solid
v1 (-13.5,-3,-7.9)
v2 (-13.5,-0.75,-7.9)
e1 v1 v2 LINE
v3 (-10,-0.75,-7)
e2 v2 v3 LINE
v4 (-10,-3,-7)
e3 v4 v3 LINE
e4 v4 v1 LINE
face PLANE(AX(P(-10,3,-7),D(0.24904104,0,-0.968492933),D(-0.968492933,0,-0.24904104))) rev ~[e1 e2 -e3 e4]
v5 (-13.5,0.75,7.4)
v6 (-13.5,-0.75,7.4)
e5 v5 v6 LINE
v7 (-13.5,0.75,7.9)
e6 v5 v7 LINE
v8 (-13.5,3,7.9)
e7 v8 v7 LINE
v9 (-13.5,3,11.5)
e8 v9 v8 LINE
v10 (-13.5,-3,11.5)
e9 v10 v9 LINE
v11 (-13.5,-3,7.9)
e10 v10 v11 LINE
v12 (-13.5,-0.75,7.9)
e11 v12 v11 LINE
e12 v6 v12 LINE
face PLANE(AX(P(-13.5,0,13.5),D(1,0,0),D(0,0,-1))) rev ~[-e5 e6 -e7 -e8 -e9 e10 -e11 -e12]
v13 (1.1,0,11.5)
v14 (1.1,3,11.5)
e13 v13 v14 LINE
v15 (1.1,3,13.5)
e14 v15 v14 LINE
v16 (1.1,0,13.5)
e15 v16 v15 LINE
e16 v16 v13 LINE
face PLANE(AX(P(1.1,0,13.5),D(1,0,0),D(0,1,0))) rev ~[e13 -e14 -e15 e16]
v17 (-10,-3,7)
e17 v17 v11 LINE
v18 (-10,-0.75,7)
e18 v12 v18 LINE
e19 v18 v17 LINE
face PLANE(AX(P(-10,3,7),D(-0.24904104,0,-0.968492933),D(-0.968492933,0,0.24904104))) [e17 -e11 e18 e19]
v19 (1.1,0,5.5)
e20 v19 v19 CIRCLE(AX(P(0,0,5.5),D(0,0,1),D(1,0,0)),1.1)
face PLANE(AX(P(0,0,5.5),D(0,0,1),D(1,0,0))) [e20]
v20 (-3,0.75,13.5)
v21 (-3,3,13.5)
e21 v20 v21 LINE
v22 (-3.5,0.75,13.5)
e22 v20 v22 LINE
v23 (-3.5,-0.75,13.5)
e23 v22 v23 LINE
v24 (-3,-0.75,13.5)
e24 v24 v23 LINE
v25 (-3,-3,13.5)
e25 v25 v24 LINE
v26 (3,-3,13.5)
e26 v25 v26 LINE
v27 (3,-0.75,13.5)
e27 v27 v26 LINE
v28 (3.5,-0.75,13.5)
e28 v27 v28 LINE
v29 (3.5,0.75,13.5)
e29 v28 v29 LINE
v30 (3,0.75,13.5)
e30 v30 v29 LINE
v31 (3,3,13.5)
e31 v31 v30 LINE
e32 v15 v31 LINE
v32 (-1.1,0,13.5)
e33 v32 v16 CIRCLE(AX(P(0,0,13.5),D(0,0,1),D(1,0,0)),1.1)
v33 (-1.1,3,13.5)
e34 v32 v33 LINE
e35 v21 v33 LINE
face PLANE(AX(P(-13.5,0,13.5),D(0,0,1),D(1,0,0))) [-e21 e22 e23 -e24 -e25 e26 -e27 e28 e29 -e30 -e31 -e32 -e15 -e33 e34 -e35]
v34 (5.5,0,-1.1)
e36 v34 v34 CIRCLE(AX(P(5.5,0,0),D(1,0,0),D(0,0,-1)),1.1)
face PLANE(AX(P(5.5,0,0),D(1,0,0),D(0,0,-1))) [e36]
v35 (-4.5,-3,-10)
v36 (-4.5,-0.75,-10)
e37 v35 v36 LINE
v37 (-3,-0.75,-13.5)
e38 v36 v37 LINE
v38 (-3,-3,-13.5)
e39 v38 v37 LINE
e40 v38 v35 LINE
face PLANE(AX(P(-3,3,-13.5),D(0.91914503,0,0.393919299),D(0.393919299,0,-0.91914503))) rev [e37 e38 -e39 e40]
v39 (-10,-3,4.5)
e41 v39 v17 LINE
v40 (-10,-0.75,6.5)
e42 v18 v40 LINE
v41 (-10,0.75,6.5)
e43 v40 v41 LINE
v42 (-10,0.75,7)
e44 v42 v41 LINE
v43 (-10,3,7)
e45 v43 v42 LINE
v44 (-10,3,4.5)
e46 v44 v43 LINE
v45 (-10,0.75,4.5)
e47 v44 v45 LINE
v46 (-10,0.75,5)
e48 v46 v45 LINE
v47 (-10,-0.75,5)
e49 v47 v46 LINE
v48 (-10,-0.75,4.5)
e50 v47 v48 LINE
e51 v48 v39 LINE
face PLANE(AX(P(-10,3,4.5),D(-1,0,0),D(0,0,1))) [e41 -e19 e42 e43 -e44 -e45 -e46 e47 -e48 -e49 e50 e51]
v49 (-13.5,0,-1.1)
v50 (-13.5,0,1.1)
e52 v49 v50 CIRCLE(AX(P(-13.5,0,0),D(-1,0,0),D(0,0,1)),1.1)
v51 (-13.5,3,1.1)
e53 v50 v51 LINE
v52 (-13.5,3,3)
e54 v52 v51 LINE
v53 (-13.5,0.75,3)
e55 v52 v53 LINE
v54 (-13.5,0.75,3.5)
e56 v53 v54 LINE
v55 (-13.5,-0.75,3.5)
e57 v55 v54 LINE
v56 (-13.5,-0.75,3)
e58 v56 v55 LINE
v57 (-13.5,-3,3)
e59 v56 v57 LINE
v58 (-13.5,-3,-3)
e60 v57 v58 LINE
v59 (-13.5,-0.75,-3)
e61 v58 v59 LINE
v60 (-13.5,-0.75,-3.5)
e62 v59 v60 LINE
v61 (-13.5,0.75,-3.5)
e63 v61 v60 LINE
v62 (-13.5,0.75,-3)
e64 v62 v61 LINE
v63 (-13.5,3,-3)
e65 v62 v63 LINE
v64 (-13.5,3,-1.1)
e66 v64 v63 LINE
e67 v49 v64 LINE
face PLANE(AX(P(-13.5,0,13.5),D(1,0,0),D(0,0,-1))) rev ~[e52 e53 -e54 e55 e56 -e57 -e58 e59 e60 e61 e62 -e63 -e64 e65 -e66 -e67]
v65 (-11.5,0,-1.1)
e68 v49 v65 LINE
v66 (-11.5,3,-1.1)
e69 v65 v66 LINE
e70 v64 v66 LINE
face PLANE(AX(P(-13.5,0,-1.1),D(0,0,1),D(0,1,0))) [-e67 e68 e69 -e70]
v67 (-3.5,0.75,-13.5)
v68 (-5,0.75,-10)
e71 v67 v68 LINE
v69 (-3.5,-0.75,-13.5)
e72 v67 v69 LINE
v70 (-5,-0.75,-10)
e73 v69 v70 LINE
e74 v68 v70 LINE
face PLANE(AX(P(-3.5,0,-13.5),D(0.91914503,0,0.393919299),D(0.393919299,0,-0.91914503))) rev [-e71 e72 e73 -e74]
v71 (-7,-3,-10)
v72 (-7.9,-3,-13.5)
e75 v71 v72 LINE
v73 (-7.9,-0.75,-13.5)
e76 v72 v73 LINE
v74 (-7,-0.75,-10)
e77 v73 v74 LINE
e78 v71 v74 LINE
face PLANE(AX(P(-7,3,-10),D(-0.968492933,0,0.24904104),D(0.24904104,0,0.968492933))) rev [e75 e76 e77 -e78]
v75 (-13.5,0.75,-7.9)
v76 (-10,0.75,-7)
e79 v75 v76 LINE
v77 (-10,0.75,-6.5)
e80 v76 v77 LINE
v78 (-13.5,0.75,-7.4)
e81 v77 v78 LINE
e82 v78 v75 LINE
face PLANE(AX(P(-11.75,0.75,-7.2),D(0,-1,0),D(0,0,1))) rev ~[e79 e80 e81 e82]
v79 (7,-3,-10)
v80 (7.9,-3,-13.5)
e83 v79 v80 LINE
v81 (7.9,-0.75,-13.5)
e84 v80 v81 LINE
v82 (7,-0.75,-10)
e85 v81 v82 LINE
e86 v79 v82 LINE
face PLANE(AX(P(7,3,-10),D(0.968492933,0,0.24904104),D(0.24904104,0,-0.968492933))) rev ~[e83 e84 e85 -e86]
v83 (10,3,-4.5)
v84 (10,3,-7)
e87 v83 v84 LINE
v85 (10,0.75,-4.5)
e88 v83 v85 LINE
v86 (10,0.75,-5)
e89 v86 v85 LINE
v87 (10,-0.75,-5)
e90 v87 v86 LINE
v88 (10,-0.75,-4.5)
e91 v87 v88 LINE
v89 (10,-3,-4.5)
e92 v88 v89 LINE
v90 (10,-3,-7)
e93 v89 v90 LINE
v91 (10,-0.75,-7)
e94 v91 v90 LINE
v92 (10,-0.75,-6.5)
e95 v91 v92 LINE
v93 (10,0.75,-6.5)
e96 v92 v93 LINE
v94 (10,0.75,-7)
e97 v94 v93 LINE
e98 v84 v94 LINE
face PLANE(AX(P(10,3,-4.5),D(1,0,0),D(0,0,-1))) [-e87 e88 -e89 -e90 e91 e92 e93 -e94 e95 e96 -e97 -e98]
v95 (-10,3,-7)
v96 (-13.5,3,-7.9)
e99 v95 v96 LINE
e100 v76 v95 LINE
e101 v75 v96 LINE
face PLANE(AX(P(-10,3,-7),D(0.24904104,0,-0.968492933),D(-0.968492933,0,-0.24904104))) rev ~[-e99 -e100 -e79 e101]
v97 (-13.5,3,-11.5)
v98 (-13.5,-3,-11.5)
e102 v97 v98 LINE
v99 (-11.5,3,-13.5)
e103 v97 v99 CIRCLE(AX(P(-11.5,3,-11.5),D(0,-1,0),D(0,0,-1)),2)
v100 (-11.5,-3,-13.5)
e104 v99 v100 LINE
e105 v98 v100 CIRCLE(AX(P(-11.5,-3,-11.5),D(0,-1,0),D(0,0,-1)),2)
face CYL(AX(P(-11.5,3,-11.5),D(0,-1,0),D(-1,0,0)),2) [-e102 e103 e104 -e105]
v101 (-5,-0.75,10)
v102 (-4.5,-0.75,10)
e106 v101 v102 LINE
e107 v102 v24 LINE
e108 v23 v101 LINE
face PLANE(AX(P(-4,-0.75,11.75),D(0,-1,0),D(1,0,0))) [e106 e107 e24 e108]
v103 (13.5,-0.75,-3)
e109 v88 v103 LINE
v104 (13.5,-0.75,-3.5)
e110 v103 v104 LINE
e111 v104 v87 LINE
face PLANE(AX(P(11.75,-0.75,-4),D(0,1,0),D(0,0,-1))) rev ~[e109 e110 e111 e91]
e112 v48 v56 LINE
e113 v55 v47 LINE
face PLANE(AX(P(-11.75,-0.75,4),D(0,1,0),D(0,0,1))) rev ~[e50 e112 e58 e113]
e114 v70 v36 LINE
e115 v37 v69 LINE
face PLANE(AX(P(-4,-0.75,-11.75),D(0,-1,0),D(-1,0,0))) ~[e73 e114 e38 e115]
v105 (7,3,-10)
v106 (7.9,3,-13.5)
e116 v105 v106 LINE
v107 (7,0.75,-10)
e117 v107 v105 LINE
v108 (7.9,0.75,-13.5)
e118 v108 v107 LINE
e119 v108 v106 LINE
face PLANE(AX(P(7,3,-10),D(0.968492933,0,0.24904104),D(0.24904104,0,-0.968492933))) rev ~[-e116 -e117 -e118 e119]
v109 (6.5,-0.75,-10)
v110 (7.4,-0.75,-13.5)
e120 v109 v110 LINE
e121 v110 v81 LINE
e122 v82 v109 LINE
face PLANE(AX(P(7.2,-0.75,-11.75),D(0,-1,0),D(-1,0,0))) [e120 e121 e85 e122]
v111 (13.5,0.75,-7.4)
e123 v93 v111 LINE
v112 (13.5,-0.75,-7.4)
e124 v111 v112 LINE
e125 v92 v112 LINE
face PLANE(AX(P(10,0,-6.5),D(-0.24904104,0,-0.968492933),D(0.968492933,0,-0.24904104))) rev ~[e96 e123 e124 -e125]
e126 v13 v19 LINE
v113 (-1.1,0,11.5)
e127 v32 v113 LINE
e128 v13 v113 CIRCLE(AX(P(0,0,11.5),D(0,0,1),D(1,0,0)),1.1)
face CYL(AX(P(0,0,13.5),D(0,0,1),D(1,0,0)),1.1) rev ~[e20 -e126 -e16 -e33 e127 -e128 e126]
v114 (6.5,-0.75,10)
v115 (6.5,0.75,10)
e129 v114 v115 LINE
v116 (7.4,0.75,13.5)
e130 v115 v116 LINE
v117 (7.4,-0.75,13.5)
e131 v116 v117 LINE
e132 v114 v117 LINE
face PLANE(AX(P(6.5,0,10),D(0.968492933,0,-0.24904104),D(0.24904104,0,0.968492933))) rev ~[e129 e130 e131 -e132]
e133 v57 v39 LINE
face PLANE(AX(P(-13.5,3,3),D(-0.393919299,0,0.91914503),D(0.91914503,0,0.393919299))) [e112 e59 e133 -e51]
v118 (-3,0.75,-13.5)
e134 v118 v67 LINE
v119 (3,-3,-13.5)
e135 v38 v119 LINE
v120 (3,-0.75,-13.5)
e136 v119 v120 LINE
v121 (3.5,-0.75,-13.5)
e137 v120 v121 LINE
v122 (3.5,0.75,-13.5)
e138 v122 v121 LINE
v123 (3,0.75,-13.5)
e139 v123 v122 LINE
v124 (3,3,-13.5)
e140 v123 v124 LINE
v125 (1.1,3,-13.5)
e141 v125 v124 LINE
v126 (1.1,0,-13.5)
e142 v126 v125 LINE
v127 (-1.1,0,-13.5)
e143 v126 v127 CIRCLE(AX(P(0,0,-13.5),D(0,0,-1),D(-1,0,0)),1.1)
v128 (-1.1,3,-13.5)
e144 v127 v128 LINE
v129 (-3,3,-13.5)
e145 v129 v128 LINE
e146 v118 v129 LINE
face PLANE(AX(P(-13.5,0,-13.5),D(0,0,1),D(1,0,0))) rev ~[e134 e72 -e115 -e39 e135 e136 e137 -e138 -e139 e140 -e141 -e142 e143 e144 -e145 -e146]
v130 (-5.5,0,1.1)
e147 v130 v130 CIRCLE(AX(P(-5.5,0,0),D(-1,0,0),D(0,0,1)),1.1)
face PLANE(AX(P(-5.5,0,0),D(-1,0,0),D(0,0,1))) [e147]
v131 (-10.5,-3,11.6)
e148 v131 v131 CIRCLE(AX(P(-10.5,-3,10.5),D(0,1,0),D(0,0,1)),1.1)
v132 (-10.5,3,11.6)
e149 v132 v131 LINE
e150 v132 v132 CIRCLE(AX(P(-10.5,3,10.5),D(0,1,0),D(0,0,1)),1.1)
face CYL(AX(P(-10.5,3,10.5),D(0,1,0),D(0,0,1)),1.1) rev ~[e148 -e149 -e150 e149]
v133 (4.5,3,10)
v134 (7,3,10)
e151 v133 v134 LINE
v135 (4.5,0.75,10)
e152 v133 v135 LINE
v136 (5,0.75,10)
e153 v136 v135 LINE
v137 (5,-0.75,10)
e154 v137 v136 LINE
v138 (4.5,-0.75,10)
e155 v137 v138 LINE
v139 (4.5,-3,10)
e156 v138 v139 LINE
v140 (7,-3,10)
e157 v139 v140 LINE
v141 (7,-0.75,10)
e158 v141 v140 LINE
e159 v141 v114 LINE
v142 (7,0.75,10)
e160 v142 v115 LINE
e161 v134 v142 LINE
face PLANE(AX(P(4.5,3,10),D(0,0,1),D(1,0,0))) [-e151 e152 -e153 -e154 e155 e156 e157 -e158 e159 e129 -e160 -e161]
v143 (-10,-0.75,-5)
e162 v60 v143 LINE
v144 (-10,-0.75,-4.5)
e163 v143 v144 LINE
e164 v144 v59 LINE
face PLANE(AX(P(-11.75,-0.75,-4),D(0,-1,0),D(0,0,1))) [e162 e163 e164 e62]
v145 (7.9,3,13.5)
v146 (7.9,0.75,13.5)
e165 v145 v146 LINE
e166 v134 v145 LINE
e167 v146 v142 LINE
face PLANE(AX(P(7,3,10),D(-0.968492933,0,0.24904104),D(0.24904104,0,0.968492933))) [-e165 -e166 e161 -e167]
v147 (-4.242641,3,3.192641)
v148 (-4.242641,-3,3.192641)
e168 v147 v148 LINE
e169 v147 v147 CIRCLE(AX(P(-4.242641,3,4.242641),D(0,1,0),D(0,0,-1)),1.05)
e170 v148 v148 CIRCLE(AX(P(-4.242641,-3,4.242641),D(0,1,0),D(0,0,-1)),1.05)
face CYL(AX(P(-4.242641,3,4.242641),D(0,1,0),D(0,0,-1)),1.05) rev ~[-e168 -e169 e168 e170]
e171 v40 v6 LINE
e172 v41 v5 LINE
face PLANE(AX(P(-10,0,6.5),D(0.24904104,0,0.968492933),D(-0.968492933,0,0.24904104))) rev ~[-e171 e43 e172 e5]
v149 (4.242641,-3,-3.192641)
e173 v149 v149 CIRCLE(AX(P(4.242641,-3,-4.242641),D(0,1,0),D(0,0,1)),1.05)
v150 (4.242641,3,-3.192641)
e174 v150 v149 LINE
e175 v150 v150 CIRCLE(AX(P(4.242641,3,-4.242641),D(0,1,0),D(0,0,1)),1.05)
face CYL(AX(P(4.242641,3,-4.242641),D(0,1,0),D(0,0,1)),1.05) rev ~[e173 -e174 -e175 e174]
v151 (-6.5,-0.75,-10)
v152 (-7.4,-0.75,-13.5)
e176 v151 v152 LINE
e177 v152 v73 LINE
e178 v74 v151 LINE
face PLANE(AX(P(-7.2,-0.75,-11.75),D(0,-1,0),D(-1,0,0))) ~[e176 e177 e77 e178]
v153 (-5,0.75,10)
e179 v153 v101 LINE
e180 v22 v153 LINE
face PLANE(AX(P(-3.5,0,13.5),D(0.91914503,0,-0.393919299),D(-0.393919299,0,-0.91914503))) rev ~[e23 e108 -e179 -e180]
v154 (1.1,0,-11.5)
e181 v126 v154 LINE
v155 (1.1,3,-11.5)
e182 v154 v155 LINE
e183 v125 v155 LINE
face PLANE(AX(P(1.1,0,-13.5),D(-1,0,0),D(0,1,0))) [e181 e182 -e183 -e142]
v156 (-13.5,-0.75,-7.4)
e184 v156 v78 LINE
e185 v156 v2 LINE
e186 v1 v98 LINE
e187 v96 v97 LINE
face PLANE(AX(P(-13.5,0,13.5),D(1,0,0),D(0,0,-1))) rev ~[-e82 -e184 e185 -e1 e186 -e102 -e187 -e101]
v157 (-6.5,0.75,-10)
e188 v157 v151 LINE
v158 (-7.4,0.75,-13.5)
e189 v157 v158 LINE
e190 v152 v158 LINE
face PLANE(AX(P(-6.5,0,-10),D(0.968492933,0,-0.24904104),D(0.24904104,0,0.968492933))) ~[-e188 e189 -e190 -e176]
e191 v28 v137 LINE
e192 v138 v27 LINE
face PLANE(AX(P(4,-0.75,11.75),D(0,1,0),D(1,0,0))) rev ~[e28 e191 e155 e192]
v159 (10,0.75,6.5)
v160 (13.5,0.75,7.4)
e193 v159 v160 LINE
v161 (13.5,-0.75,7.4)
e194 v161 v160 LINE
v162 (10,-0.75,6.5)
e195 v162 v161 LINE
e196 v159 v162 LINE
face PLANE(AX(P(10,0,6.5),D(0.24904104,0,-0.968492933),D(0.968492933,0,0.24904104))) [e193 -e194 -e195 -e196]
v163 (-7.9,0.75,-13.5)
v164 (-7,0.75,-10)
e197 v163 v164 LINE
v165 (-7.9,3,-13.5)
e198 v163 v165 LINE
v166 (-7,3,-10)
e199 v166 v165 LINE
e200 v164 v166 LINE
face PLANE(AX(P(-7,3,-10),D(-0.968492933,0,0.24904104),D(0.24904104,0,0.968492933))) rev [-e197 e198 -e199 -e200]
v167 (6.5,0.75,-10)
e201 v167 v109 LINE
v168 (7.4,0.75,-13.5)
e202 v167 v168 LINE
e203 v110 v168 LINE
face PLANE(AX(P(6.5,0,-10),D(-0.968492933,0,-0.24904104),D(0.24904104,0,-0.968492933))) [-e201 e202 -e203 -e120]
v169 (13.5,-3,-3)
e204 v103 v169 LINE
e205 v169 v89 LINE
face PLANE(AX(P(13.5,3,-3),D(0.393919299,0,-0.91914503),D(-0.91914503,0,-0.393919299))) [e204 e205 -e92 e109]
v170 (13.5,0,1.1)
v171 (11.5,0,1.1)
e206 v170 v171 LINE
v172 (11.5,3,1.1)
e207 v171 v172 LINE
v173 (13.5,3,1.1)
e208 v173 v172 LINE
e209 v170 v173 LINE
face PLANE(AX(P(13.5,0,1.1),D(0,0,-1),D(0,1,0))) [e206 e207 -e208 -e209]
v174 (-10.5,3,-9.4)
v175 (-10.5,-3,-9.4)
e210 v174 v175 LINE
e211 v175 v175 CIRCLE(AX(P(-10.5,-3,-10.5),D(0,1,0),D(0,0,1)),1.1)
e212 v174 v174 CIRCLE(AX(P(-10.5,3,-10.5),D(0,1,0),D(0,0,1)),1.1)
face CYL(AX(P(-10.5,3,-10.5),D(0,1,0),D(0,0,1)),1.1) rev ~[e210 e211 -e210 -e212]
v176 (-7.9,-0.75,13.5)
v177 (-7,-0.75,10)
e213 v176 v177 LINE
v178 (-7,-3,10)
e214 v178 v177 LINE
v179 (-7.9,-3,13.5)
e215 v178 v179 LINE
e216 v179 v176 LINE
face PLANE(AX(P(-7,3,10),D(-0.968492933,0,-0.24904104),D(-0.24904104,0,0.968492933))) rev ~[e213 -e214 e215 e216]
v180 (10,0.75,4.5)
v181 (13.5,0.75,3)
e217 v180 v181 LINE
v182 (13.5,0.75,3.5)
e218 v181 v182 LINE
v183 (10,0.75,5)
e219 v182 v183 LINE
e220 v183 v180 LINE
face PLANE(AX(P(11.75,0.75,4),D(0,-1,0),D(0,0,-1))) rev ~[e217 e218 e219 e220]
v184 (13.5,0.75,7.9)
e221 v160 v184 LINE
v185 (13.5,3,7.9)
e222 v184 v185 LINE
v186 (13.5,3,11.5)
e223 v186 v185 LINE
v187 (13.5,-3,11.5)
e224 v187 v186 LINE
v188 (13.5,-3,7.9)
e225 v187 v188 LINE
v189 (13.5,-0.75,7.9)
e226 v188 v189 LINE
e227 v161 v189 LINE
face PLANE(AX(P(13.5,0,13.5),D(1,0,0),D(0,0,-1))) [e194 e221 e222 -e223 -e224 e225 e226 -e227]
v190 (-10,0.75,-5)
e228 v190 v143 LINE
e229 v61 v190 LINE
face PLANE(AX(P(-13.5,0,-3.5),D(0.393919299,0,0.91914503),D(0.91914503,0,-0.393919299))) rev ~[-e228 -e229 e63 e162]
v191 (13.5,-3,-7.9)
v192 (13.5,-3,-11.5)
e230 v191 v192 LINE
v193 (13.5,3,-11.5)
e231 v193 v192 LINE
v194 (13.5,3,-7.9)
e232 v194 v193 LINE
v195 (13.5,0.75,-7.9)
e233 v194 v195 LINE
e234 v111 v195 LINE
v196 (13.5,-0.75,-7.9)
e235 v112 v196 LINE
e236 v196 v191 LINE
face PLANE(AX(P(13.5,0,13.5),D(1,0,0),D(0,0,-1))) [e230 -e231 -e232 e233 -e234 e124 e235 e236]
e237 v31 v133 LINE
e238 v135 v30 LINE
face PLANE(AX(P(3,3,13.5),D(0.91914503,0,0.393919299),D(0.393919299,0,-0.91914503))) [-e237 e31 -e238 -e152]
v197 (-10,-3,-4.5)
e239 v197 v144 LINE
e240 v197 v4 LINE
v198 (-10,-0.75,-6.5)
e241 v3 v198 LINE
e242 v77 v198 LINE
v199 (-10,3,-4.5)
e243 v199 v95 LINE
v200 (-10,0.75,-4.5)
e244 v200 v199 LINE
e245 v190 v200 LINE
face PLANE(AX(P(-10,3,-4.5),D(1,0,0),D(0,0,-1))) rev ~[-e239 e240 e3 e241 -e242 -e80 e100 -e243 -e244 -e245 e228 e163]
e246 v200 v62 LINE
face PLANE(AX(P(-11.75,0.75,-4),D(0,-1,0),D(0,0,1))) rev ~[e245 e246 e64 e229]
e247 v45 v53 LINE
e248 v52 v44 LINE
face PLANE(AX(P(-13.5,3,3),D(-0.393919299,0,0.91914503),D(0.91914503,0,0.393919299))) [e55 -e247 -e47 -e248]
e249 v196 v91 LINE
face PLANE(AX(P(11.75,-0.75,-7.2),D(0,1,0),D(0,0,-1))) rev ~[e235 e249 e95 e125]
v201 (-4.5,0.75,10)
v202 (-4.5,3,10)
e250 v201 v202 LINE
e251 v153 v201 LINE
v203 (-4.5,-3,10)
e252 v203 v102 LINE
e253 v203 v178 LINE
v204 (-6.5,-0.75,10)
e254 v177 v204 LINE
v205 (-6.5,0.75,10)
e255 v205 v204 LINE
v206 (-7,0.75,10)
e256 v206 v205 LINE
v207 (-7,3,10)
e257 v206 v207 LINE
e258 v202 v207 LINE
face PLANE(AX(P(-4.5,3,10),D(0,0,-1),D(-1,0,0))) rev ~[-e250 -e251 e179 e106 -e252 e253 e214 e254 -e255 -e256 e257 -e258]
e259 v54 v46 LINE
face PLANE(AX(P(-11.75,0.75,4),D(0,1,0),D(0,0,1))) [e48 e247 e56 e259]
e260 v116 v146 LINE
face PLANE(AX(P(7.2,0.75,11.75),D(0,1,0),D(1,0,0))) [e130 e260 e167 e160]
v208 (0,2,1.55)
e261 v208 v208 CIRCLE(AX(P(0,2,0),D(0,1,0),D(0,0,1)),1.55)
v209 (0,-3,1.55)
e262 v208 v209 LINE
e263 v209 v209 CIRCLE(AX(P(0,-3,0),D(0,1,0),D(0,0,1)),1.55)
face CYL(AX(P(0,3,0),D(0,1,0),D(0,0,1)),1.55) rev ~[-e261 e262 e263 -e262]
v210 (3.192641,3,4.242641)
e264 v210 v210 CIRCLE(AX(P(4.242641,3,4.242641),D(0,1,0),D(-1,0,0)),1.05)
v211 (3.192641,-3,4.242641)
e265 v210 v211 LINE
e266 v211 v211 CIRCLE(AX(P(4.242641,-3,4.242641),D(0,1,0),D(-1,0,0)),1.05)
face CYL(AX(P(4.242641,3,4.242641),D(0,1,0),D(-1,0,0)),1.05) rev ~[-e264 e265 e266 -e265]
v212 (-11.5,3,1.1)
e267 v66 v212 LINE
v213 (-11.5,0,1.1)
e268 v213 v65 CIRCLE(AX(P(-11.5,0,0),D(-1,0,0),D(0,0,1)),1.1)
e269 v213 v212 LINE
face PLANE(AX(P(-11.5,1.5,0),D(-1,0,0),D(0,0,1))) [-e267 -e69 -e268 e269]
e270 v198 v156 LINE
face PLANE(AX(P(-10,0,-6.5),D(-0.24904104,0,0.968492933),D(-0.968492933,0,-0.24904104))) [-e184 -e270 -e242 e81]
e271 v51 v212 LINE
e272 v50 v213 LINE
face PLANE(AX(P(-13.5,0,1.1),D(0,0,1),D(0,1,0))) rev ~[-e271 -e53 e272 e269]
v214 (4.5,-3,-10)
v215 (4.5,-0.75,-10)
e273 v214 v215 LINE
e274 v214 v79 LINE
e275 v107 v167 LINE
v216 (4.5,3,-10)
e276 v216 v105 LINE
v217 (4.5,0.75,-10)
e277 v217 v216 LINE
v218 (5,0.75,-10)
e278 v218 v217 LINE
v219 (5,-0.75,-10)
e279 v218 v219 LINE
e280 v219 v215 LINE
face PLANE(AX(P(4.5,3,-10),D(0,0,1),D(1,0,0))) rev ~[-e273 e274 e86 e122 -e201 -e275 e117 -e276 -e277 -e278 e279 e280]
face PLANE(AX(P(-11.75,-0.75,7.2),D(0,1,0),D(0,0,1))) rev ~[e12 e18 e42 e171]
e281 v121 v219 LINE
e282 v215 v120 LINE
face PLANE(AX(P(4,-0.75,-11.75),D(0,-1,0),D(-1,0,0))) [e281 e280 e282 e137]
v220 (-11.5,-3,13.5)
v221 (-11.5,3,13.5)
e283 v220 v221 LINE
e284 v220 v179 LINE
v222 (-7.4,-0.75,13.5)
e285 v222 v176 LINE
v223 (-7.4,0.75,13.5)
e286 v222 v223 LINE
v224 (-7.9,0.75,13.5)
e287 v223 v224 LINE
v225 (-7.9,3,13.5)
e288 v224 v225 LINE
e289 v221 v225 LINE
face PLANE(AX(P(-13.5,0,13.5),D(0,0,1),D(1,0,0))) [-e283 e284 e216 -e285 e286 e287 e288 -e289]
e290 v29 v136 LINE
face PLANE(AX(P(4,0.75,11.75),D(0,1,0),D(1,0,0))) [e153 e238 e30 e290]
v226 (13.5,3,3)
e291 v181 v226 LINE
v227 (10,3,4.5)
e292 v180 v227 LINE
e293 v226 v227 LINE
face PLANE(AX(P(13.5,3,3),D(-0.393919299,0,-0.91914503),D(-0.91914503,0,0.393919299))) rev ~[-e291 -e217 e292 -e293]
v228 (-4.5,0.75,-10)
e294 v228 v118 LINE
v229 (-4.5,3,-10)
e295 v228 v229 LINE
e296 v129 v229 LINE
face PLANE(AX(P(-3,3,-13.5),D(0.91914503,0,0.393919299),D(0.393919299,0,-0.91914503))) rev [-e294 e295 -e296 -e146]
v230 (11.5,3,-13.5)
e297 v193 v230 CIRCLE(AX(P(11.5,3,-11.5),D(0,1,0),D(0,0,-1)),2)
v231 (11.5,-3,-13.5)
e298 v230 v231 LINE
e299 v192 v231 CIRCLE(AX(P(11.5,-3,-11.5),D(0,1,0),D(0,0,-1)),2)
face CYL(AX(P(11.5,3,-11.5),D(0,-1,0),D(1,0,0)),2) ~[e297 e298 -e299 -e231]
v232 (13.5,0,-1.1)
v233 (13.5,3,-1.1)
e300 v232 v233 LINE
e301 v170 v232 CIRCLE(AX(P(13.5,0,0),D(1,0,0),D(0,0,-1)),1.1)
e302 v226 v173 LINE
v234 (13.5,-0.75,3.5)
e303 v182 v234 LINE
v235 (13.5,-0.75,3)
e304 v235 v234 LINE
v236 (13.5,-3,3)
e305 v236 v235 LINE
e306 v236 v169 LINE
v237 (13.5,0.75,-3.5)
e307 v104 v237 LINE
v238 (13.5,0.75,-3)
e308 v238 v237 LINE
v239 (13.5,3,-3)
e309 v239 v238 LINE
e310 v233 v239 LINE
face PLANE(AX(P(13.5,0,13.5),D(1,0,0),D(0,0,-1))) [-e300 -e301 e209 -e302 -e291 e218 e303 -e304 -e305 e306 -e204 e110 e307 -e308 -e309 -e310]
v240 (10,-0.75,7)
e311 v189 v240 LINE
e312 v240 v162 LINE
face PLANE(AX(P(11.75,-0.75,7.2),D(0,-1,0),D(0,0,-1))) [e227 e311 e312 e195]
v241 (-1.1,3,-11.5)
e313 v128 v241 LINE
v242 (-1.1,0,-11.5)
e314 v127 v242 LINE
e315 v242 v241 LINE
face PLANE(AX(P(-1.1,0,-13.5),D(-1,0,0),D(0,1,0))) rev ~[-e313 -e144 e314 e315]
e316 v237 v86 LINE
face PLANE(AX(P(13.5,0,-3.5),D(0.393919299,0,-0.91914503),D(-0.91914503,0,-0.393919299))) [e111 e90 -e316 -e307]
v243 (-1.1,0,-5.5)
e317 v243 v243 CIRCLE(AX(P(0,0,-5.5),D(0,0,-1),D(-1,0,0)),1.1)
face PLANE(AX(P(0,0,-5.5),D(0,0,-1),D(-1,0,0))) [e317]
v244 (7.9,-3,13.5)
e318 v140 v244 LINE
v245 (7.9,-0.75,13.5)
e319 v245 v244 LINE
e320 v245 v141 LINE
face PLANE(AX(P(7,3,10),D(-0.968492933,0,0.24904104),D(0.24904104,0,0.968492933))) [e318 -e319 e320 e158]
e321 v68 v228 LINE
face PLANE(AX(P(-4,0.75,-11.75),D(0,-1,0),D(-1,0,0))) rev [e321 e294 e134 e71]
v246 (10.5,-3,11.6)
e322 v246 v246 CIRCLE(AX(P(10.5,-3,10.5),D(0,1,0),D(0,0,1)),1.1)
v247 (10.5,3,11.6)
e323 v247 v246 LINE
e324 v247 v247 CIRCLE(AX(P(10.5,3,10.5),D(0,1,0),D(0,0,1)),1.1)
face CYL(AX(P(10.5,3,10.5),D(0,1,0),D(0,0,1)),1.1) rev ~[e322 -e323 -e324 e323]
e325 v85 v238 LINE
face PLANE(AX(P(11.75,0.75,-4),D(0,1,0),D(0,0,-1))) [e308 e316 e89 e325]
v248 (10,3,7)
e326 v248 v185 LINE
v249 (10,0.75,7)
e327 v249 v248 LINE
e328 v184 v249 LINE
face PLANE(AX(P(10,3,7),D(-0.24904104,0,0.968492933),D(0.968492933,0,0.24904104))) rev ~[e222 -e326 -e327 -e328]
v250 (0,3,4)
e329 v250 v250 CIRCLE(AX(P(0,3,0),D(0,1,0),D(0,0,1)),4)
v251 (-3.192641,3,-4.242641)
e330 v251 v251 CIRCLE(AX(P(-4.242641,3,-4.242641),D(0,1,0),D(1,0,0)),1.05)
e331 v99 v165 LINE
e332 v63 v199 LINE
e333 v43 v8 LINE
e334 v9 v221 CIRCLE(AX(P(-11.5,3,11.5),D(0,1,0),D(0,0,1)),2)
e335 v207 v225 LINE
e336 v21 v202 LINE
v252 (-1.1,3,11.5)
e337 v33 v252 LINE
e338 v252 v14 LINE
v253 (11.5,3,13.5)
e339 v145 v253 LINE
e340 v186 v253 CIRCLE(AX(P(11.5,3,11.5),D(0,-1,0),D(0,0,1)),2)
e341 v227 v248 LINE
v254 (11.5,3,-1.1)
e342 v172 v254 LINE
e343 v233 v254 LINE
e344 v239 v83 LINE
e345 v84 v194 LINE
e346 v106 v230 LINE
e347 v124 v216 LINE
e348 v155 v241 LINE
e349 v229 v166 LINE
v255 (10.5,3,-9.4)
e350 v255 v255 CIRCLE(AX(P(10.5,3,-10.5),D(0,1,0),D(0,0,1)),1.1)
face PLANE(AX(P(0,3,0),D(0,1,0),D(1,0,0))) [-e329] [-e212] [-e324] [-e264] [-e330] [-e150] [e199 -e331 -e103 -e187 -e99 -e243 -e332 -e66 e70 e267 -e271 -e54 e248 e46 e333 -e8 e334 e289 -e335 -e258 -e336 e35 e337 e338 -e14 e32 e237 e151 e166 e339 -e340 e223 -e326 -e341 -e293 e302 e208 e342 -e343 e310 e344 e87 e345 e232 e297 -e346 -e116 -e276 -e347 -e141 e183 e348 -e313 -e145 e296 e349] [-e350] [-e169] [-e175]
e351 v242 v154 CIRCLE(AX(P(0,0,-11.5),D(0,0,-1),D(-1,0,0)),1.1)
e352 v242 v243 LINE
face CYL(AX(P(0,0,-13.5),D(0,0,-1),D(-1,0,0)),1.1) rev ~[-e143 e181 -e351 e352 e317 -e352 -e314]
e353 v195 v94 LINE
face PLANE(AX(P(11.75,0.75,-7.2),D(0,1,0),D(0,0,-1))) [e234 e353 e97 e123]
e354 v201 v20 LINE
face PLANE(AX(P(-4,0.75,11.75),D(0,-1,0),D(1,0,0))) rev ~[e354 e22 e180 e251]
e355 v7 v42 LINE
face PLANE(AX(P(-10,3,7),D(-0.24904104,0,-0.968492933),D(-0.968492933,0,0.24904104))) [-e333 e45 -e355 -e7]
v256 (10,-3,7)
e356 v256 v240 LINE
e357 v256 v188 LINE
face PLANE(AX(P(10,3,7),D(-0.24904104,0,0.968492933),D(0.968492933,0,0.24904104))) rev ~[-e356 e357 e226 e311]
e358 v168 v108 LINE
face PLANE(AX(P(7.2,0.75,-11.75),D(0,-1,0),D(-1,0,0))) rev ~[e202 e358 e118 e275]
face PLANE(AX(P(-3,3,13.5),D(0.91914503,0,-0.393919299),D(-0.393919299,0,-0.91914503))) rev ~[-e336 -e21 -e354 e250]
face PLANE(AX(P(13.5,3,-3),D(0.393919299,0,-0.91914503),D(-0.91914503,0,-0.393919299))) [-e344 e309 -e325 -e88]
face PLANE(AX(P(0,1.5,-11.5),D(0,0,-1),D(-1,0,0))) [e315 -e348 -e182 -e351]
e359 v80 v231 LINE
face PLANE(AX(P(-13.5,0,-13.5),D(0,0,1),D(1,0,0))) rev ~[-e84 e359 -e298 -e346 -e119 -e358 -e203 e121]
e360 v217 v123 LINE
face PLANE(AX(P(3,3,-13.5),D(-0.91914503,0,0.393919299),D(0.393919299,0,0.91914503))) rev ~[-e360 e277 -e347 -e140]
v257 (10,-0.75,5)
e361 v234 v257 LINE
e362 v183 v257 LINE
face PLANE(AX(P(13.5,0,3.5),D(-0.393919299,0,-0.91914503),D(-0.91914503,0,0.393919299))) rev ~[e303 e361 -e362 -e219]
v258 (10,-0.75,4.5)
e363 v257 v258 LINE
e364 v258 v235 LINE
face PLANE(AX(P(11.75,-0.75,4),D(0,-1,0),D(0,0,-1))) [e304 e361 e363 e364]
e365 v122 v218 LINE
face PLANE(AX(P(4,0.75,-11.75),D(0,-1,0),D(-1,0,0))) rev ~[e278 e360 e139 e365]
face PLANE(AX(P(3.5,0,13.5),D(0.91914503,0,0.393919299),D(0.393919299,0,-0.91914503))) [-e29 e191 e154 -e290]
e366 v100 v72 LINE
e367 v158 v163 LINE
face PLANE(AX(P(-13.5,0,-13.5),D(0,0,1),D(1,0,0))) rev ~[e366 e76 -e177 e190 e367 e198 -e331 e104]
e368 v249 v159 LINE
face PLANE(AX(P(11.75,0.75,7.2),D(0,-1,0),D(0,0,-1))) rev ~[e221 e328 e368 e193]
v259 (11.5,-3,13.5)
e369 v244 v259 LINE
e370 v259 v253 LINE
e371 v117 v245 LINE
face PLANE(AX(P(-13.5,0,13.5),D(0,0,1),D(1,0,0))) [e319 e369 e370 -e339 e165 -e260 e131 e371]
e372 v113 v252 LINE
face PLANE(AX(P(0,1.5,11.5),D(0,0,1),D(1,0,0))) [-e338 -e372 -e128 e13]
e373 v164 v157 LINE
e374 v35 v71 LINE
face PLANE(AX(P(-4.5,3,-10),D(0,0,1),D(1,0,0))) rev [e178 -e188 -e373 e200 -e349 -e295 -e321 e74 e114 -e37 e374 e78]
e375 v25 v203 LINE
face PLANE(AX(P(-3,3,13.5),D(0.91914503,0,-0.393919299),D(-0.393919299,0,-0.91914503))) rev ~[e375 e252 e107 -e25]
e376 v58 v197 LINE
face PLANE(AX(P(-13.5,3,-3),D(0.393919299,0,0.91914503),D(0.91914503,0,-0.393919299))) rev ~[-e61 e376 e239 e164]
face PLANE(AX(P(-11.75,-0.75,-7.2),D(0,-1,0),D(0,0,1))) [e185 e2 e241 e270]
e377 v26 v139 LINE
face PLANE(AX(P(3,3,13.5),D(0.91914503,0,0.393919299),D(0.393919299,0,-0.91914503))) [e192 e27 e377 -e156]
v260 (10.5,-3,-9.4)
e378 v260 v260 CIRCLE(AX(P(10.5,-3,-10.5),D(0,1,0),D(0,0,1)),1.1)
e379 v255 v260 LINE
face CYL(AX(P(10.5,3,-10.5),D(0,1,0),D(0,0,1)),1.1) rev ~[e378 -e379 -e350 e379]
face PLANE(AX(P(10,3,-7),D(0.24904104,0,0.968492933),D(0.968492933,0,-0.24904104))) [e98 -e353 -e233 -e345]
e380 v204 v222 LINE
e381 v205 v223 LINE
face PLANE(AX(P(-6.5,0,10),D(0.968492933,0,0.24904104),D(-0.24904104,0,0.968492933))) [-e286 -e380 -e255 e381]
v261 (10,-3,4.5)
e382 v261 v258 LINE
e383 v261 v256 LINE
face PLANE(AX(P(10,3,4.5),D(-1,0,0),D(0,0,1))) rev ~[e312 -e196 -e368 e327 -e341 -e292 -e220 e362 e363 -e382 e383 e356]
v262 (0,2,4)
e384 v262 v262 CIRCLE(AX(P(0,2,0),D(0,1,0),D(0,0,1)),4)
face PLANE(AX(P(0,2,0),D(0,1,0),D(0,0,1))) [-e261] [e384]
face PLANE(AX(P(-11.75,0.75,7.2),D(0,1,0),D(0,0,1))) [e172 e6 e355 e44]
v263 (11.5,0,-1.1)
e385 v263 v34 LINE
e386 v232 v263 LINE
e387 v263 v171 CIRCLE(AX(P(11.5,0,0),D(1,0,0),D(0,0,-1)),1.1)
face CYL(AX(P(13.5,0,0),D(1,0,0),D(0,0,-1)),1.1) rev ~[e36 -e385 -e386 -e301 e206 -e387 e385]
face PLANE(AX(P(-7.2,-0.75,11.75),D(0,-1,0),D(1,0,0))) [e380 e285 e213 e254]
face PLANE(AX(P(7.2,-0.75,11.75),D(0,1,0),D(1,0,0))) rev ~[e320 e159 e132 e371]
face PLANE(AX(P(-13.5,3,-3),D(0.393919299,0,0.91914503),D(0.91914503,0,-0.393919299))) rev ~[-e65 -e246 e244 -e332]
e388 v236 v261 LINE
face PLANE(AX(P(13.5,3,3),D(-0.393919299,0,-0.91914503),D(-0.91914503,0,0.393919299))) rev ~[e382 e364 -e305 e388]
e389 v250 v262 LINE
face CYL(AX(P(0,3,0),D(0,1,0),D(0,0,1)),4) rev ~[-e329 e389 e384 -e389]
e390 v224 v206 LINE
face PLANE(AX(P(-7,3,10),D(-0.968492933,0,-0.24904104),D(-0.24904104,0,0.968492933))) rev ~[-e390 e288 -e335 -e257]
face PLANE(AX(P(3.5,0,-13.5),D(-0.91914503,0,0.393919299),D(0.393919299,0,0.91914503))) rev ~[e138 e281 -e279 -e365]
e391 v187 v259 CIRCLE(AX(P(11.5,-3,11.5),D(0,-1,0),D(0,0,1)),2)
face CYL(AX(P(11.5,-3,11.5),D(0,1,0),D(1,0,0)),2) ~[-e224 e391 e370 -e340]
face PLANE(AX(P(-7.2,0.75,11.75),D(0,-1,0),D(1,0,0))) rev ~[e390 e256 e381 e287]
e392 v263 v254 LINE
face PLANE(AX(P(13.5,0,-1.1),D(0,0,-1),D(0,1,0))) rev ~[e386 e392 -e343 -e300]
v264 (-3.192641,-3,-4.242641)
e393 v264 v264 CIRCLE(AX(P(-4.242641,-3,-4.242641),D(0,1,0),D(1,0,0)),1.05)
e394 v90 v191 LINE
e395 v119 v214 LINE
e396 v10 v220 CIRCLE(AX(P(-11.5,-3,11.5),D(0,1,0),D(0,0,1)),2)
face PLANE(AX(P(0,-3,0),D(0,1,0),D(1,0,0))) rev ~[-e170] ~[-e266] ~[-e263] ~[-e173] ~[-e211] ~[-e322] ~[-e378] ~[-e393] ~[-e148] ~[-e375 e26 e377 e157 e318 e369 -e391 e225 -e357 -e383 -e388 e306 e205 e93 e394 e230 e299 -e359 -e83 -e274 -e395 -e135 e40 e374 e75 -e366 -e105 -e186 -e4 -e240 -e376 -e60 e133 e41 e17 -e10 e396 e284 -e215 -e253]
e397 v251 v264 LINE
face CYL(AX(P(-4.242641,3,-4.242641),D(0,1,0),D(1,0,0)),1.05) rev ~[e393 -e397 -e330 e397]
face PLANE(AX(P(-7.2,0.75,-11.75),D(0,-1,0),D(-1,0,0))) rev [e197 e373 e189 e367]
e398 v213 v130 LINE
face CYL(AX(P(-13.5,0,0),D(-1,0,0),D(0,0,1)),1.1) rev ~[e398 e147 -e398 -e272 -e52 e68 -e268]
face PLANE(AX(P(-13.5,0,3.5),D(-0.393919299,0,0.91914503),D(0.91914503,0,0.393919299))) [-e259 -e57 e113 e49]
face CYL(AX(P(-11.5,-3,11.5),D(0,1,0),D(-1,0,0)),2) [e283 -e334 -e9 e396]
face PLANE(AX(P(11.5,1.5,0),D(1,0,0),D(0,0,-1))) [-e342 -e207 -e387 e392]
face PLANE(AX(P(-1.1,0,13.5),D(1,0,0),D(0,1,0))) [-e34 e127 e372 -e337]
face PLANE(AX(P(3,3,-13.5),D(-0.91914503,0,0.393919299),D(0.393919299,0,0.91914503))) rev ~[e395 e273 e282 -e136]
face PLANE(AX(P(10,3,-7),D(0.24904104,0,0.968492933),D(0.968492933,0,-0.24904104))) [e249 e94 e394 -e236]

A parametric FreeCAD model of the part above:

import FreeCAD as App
import Part
import Sketcher

V = App.Vector
Q = App.Units.Quantity


def edges_at(feature, points):
    """Names of the edges that pass closest to the given points."""
    edges = feature.Shape.Edges
    near = lambda p: min(range(len(edges)), key=lambda i: edges[i].distToShape(Part.Vertex(*p))[0])
    return sorted({f"Edge{near(p) + 1}" for p in points})


def add_polygon(sketch, points):
    """Adds a closed chain of lines whose ends are joined by coincident constraints."""
    first, n = sketch.GeometryCount, len(points)
    for a, b in zip(points, points[1:] + points[:1]):
        sketch.addGeometry(Part.LineSegment(App.Vector(*a, 0), App.Vector(*b, 0)), False)
    for i in range(n):
        sketch.addConstraint(Sketcher.Constraint("Coincident", first + i, 2, first + (i + 1) % n, 1))

doc = App.newDocument("Part")
body = doc.addObject("PartDesign::Body", "Body")

# Sketch on XZ plane
sketch1 = body.newObject("Sketcher::SketchObject", "Sketch")
sketch1.AttachmentSupport = (doc.getObject("XZ_Plane"), [""])
sketch1.MapMode = "FlatFace"
add_polygon(sketch1, [(-14, -14), (-14, 14), (14, 14), (14, -14)])  # lines 0-3
sketch1.addConstraint([
    Sketcher.Constraint("Vertical", 0),
    Sketcher.Constraint("Horizontal", 1),
    Sketcher.Constraint("Vertical", 2),
    Sketcher.Constraint("Horizontal", 3),
    Sketcher.Constraint("Symmetric", 0, 2, 2, 2, -1, 1),
    Sketcher.Constraint("Equal", 3, 0),
    Sketcher.Constraint("DistanceX", 1, 1, 1, 2, Q("27 mm")),
])
pad1 = body.newObject("PartDesign::Pad", "Pad")
pad1.Profile = sketch1
pad1.Length = 6
pad1.Midplane = True
doc.recompute()

fillet = body.newObject("PartDesign::Fillet", "Fillet")
fillet.Base = (pad1, edges_at(pad1, [
    (13.5, 0, 13.5),
    (-13.5, 0, 13.5),
    (-13.5, 0, -13.5),
    (13.5, 0, -13.5),
]))
fillet.Radius = 2

# Sketch on XZ plane
sketch2 = body.newObject("Sketcher::SketchObject", "Sketch001")
sketch2.AttachmentSupport = (doc.getObject("XZ_Plane"), [""])
sketch2.MapMode = "FlatFace"
sketch2.AttachmentOffset = App.Placement(V(0, 0, -3), App.Rotation())
sketch2.addGeometry([
    Part.Circle(V(-10.5, -10.5, 0), V(0, 0, 1), 1.1),
    Part.Circle(V(10.5, -10.5, 0), V(0, 0, 1), 1.1),
    Part.Circle(V(-10.5, 10.5, 0), V(0, 0, 1), 1.1),
    Part.Circle(V(10.5, 10.5, 0), V(0, 0, 1), 1.1),
], False)
sketch2.addConstraint([
    Sketcher.Constraint("Equal", 0, 1),
    Sketcher.Constraint("Equal", 1, 2),
    Sketcher.Constraint("Equal", 2, 3),
    Sketcher.Constraint("Symmetric", 1, 3, 2, 3, -1, 1),
    Sketcher.Constraint("Symmetric", 0, 3, 3, 3, -1, 1),
    Sketcher.Constraint("Symmetric", 0, 3, 1, 3, -2),
    Sketcher.Constraint("Diameter", 0, Q("2.2 mm")),
    Sketcher.Constraint("DistanceX", 0, 3, 1, 3, Q("21 mm")),
    Sketcher.Constraint("DistanceY", 0, 3, 2, 3, Q("21 mm")),
])
pocket1 = body.newObject("PartDesign::Pocket", "Pocket")
pocket1.Profile = sketch2
pocket1.Length = 6
pocket1.Reversed = True

# Sketch on XZ plane
sketch3 = body.newObject("Sketcher::SketchObject", "Sketch002")
sketch3.AttachmentSupport = (doc.getObject("XZ_Plane"), [""])
sketch3.MapMode = "FlatFace"
sketch3.AttachmentOffset = App.Placement(V(0, 0, -3), App.Rotation())
sketch3.addGeometry(Part.Circle(V(0, 0, 0), V(0, 0, 1), 1.6), False)
sketch3.addConstraint([
    Sketcher.Constraint("Coincident", 0, 3, -1, 1),
    Sketcher.Constraint("Diameter", 0, Q("3.1 mm")),
])
pocket2 = body.newObject("PartDesign::Pocket", "Pocket001")
pocket2.Profile = sketch3
pocket2.Length = 6
pocket2.Reversed = True

# Sketch on XZ plane
sketch4 = body.newObject("Sketcher::SketchObject", "Sketch003")
sketch4.AttachmentSupport = (doc.getObject("XZ_Plane"), [""])
sketch4.MapMode = "FlatFace"
sketch4.AttachmentOffset = App.Placement(V(0, 0, -3), App.Rotation())
sketch4.addGeometry(Part.Circle(V(4.2, -4.2, 0), V(0, 0, 1), 1.1), False)
sketch4.addConstraint([
    Sketcher.Constraint("Diameter", 0, Q("2.1 mm")),
    Sketcher.Constraint("DistanceX", -1, 1, 0, 3, Q("4.242641 mm")),
    Sketcher.Constraint("DistanceY", 0, 3, -1, 1, Q("4.242641 mm")),
])
pocket3 = body.newObject("PartDesign::Pocket", "Pocket002")
pocket3.Profile = sketch4
pocket3.Length = 6
pocket3.Reversed = True
doc.recompute()

polarpattern = body.newObject("PartDesign::PolarPattern", "PolarPattern")
polarpattern.Originals = [pocket3]
polarpattern.Axis = (doc.getObject("Y_Axis"), [""])
polarpattern.Angle = 360
polarpattern.Occurrences = 4
body.Tip = polarpattern

# Sketch on XZ plane
sketch5 = body.newObject("Sketcher::SketchObject", "Sketch004")
sketch5.AttachmentSupport = (doc.getObject("XZ_Plane"), [""])
sketch5.MapMode = "FlatFace"
sketch5.AttachmentOffset = App.Placement(V(0, 0, -3), App.Rotation())
sketch5.addGeometry(Part.Circle(V(0, 0, 0), V(0, 0, 1), 4), False)
sketch5.addConstraint([
    Sketcher.Constraint("Coincident", 0, 3, -1, 1),
    Sketcher.Constraint("Diameter", 0, Q("8 mm")),
])
pocket4 = body.newObject("PartDesign::Pocket", "Pocket003")
pocket4.Profile = sketch5
pocket4.Length = 1
pocket4.Reversed = True

# Sketch on XZ plane
sketch6 = body.newObject("Sketcher::SketchObject", "Sketch005")
sketch6.AttachmentSupport = (doc.getObject("XZ_Plane"), [""])
sketch6.MapMode = "FlatFace"
sketch6.AttachmentOffset = App.Placement(V(0, 0, -3), App.Rotation())
add_polygon(sketch6, [(-28.1, -86), (3, -13.5), (4.5, -10), (7, -10), (7.9, -13.5), (27.6, -89.9), (16.5, -247.3), (-39.1, -243.4)])  # lines 0-7
sketch6.addConstraint([
    Sketcher.Constraint("Horizontal", 2),
    Sketcher.Constraint("Parallel", 0, 1),
    Sketcher.Constraint("Parallel", 3, 4),
    Sketcher.Constraint("Perpendicular", 5, 6),
    Sketcher.Constraint("Perpendicular", 6, 7),
    Sketcher.Constraint("Horizontal", 0, 2, 3, 2),
    Sketcher.Constraint("Equal", 0, 4),
    Sketcher.Constraint("Equal", 5, 7),
    Sketcher.Constraint("DistanceX", 2, 1, 2, 2, Q("2.5 mm")),
    Sketcher.Constraint("DistanceX", -1, 1, 0, 2, Q("3 mm")),
    Sketcher.Constraint("DistanceY", 1, 2, -1, 1, Q("10 mm")),
    Sketcher.Constraint("DistanceX", -1, 1, 2, 2, Q("7 mm")),
    Sketcher.Constraint("DistanceY", 0, 2, -1, 1, Q("13.5 mm")),
    Sketcher.Constraint("DistanceX", -1, 1, 3, 2, Q("7.9 mm")),
    Sketcher.Constraint("DistanceX", 6, 2, -1, 1, Q("39.100299 mm")),
    Sketcher.Constraint("Distance", 0, Q("78.904572 mm")),
])
pocket5 = body.newObject("PartDesign::Pocket", "Pocket004")
pocket5.Profile = sketch6
pocket5.Length = 42.024992
pocket5.Midplane = True
doc.recompute()

mirrored = body.newObject("PartDesign::Mirrored", "Mirrored")
mirrored.Originals = [pocket5]
mirrored.MirrorPlane = (doc.getObject("YZ_Plane"), [""])
body.Tip = mirrored
doc.recompute()

polarpattern2 = body.newObject("PartDesign::PolarPattern", "PolarPattern001")
polarpattern2.Originals = [pocket5]
polarpattern2.Axis = (doc.getObject("Y_Axis"), [""])
polarpattern2.Angle = 360
polarpattern2.Occurrences = 4
body.Tip = polarpattern2

# Sketch on XZ plane
sketch7 = body.newObject("Sketcher::SketchObject", "Sketch006")
sketch7.AttachmentSupport = (doc.getObject("XZ_Plane"), [""])
sketch7.MapMode = "FlatFace"
sketch7.AttachmentOffset = App.Placement(V(0, 0, -3), App.Rotation())
add_polygon(sketch7, [(-13.5, 3), (-86, -28.1), (-243.4, -39.1), (-247.3, 16.5), (-89.9, 27.6), (-13.5, 7.9), (-10, 7), (-10, 4.5)])  # lines 0-7
sketch7.addConstraint([
    Sketcher.Constraint("Vertical", 6),
    Sketcher.Constraint("Perpendicular", 1, 2),
    Sketcher.Constraint("Perpendicular", 2, 3),
    Sketcher.Constraint("Parallel", 4, 5),
    Sketcher.Constraint("Parallel", 0, 7),
    Sketcher.Constraint("Vertical", 4, 2, 7, 2),
    Sketcher.Constraint("Equal", 1, 3),
    Sketcher.Constraint("Equal", 0, 4),
    Sketcher.Constraint("DistanceY", 6, 2, 6, 1, Q("2.5 mm")),
    Sketcher.Constraint("DistanceX", 5, 2, -1, 1, Q("10 mm")),
    Sketcher.Constraint("DistanceY", -1, 1, 5, 2, Q("7 mm")),
    Sketcher.Constraint("DistanceY", -1, 1, 7, 2, Q("3 mm")),
    Sketcher.Constraint("DistanceX", 4, 2, -1, 1, Q("13.5 mm")),
    Sketcher.Constraint("DistanceY", -1, 1, 4, 2, Q("7.9 mm")),
    Sketcher.Constraint("DistanceY", 1, 2, -1, 1, Q("39.100299 mm")),
    Sketcher.Constraint("DistanceX", 2, 2, 0, 2, Q("161.3178 mm")),
])
pocket6 = body.newObject("PartDesign::Pocket", "Pocket005")
pocket6.Profile = sketch7
pocket6.Length = 42.024992
pocket6.Midplane = True

# Sketch on XZ plane
sketch8 = body.newObject("Sketcher::SketchObject", "Sketch007")
sketch8.AttachmentSupport = (doc.getObject("XZ_Plane"), [""])
sketch8.MapMode = "FlatFace"
sketch8.AttachmentOffset = App.Placement(V(0, 0, -3), App.Rotation())
add_polygon(sketch8, [(3, 13.5), (-28.1, 86), (-39.1, 243.4), (16.5, 247.3), (27.6, 89.9), (7.9, 13.5), (7, 10), (4.5, 10)])  # lines 0-7
sketch8.addConstraint([
    Sketcher.Constraint("Horizontal", 6),
    Sketcher.Constraint("Perpendicular", 1, 2),
    Sketcher.Constraint("Perpendicular", 2, 3),
    Sketcher.Constraint("Parallel", 4, 5),
    Sketcher.Constraint("Parallel", 0, 7),
    Sketcher.Constraint("Horizontal", 4, 2, 7, 2),
    Sketcher.Constraint("Equal", 1, 3),
    Sketcher.Constraint("Equal", 0, 4),
    Sketcher.Constraint("DistanceX", 6, 2, 6, 1, Q("2.5 mm")),
    Sketcher.Constraint("DistanceX", -1, 1, 5, 2, Q("7 mm")),
    Sketcher.Constraint("DistanceY", -1, 1, 5, 2, Q("10 mm")),
    Sketcher.Constraint("DistanceX", -1, 1, 7, 2, Q("3 mm")),
    Sketcher.Constraint("DistanceX", -1, 1, 4, 2, Q("7.9 mm")),
    Sketcher.Constraint("DistanceY", -1, 1, 4, 2, Q("13.5 mm")),
    Sketcher.Constraint("DistanceX", 1, 2, -1, 1, Q("39.100299 mm")),
    Sketcher.Constraint("DistanceY", 0, 2, 2, 2, Q("161.3178 mm")),
])
pocket7 = body.newObject("PartDesign::Pocket", "Pocket006")
pocket7.Profile = sketch8
pocket7.Length = 42.024992
pocket7.Midplane = True

# Sketch on XZ plane
sketch9 = body.newObject("Sketcher::SketchObject", "Sketch008")
sketch9.AttachmentSupport = (doc.getObject("XZ_Plane"), [""])
sketch9.MapMode = "FlatFace"
sketch9.AttachmentOffset = App.Placement(V(0, 0, -3), App.Rotation())
add_polygon(sketch9, [(13.5, -3), (86, 28.1), (243.4, 39.1), (247.3, -16.5), (89.9, -27.6), (13.5, -7.9), (10, -7), (10, -4.5)])  # lines 0-7
sketch9.addConstraint([
    Sketcher.Constraint("Vertical", 6),
    Sketcher.Constraint("Perpendicular", 1, 2),
    Sketcher.Constraint("Perpendicular", 2, 3),
    Sketcher.Constraint("Parallel", 4, 5),
    Sketcher.Constraint("Parallel", 0, 7),
    Sketcher.Constraint("Vertical", 4, 2, 7, 2),
    Sketcher.Constraint("Equal", 1, 3),
    Sketcher.Constraint("Equal", 0, 4),
    Sketcher.Constraint("DistanceY", 6, 1, 6, 2, Q("2.5 mm")),
    Sketcher.Constraint("DistanceX", -1, 1, 5, 2, Q("10 mm")),
    Sketcher.Constraint("DistanceY", 5, 2, -1, 1, Q("7 mm")),
    Sketcher.Constraint("DistanceY", 7, 2, -1, 1, Q("3 mm")),
    Sketcher.Constraint("DistanceX", -1, 1, 4, 2, Q("13.5 mm")),
    Sketcher.Constraint("DistanceY", 4, 2, -1, 1, Q("7.9 mm")),
    Sketcher.Constraint("DistanceY", -1, 1, 1, 2, Q("39.100299 mm")),
    Sketcher.Constraint("DistanceX", 0, 2, 2, 2, Q("161.3178 mm")),
])
pocket8 = body.newObject("PartDesign::Pocket", "Pocket007")
pocket8.Profile = sketch9
pocket8.Length = 42.024992
pocket8.Midplane = True

# Sketch on XY plane
sketch10 = body.newObject("Sketcher::SketchObject", "Sketch009")
sketch10.AttachmentSupport = (doc.getObject("XY_Plane"), [""])
sketch10.MapMode = "FlatFace"
sketch10.AttachmentOffset = App.Placement(V(0, 0, 13.5), App.Rotation())
sketch10.addGeometry(Part.Circle(V(0, 0, 0), V(0, 0, 1), 1.1), False)
sketch10.addConstraint([
    Sketcher.Constraint("Coincident", 0, 3, -1, 1),
    Sketcher.Constraint("Diameter", 0, Q("2.2 mm")),
])
pocket9 = body.newObject("PartDesign::Pocket", "Pocket008")
pocket9.Profile = sketch10
pocket9.Length = 8
doc.recompute()

polarpattern3 = body.newObject("PartDesign::PolarPattern", "PolarPattern002")
polarpattern3.Originals = [pocket9]
polarpattern3.Axis = (doc.getObject("Y_Axis"), [""])
polarpattern3.Angle = 360
polarpattern3.Occurrences = 4
body.Tip = polarpattern3

# Sketch on XZ plane
sketch11 = body.newObject("Sketcher::SketchObject", "Sketch010")
sketch11.AttachmentSupport = (doc.getObject("XZ_Plane"), [""])
sketch11.MapMode = "FlatFace"
add_polygon(sketch11, [(7, -10), (7.9, -13.5), (7.4, -13.5), (6.5, -10)])  # lines 0-3
add_polygon(sketch11, [(3.5, -13.5), (3, -13.5), (4.5, -10), (5, -10)])  # lines 4-7
sketch11.addConstraint([
    Sketcher.Constraint("Horizontal", 1),
    Sketcher.Constraint("Horizontal", 3),
    Sketcher.Constraint("Horizontal", 4),
    Sketcher.Constraint("Horizontal", 6),
    Sketcher.Constraint("Parallel", 0, 2),
    Sketcher.Constraint("Parallel", 5, 7),
    Sketcher.Constraint("Horizontal", 1, 2, 4, 2),
    Sketcher.Constraint("Horizontal", 3, 2, 5, 2),
    Sketcher.Constraint("Equal", 3, 4),
    Sketcher.Constraint("DistanceX", 1, 2, 1, 1, Q("0.5 mm")),
    Sketcher.Constraint("DistanceY", 2, 2, -1, 1, Q("10 mm")),
    Sketcher.Constraint("DistanceX", -1, 1, 3, 2, Q("7 mm")),
    Sketcher.Constraint("DistanceX", -1, 1, 4, 2, Q("3 mm")),
    Sketcher.Constraint("DistanceX", -1, 1, 6, 2, Q("5 mm")),
    Sketcher.Constraint("DistanceX", -1, 1, 0, 2, Q("7.9 mm")),
    Sketcher.Constraint("DistanceY", 0, 2, -1, 1, Q("13.5 mm")),
])
pad2 = body.newObject("PartDesign::Pad", "Pad001")
pad2.Profile = sketch11
pad2.Length = 1.5
pad2.Midplane = True
doc.recompute()

mirrored2 = body.newObject("PartDesign::Mirrored", "Mirrored001")
mirrored2.Originals = [pad2]
mirrored2.MirrorPlane = (doc.getObject("YZ_Plane"), [""])
body.Tip = mirrored2
doc.recompute()

polarpattern4 = body.newObject("PartDesign::PolarPattern", "PolarPattern003")
polarpattern4.Originals = [pad2]
polarpattern4.Axis = (doc.getObject("Y_Axis"), [""])
polarpattern4.Angle = 360
polarpattern4.Occurrences = 4
body.Tip = polarpattern4

# Sketch on XZ plane
sketch12 = body.newObject("Sketcher::SketchObject", "Sketch011")
sketch12.AttachmentSupport = (doc.getObject("XZ_Plane"), [""])
sketch12.MapMode = "FlatFace"
add_polygon(sketch12, [(-13.5, 7.9), (-10, 7), (-10, 6.5), (-13.5, 7.4)])  # lines 0-3
add_polygon(sketch12, [(-13.5, 3), (-13.5, 3.5), (-10, 5), (-10, 4.5)])  # lines 4-7
sketch12.addConstraint([
    Sketcher.Constraint("Vertical", 1),
    Sketcher.Constraint("Vertical", 3),
    Sketcher.Constraint("Vertical", 4),
    Sketcher.Constraint("Vertical", 6),
    Sketcher.Constraint("Parallel", 0, 2),
    Sketcher.Constraint("Parallel", 5, 7),
    Sketcher.Constraint("Vertical", 3, 2, 4, 2),
    Sketcher.Constraint("Vertical", 1, 2, 5, 2),
    Sketcher.Constraint("Equal", 3, 4),
    Sketcher.Constraint("DistanceY", 1, 2, 1, 1, Q("0.5 mm")),
    Sketcher.Constraint("DistanceX", 0, 2, -1, 1, Q("10 mm")),
    Sketcher.Constraint("DistanceY", -1, 1, 0, 2, Q("7 mm")),
    Sketcher.Constraint("DistanceY", -1, 1, 5, 2, Q("5 mm")),
    Sketcher.Constraint("DistanceY", -1, 1, 7, 2, Q("3 mm")),
    Sketcher.Constraint("DistanceX", 2, 2, -1, 1, Q("13.5 mm")),
    Sketcher.Constraint("DistanceY", -1, 1, 2, 2, Q("7.4 mm")),
])
pad3 = body.newObject("PartDesign::Pad", "Pad002")
pad3.Profile = sketch12
pad3.Length = 1.5
pad3.Midplane = True

# Sketch on XZ plane
sketch13 = body.newObject("Sketcher::SketchObject", "Sketch012")
sketch13.AttachmentSupport = (doc.getObject("XZ_Plane"), [""])
sketch13.MapMode = "FlatFace"
add_polygon(sketch13, [(7.9, 13.5), (7, 10), (6.5, 10), (7.4, 13.5)])  # lines 0-3
add_polygon(sketch13, [(3, 13.5), (3.5, 13.5), (5, 10), (4.5, 10)])  # lines 4-7
sketch13.addConstraint([
    Sketcher.Constraint("Horizontal", 1),
    Sketcher.Constraint("Horizontal", 3),
    Sketcher.Constraint("Horizontal", 4),
    Sketcher.Constraint("Horizontal", 6),
    Sketcher.Constraint("Parallel", 0, 2),
    Sketcher.Constraint("Parallel", 5, 7),
    Sketcher.Constraint("Horizontal", 3, 2, 4, 2),
    Sketcher.Constraint("Horizontal", 1, 2, 5, 2),
    Sketcher.Constraint("Equal", 3, 4),
    Sketcher.Constraint("DistanceX", 1, 2, 1, 1, Q("0.5 mm")),
    Sketcher.Constraint("DistanceX", -1, 1, 0, 2, Q("7 mm")),
    Sketcher.Constraint("DistanceY", -1, 1, 0, 2, Q("10 mm")),
    Sketcher.Constraint("DistanceX", -1, 1, 5, 2, Q("5 mm")),
    Sketcher.Constraint("DistanceX", -1, 1, 7, 2, Q("3 mm")),
    Sketcher.Constraint("DistanceX", -1, 1, 2, 2, Q("7.4 mm")),
    Sketcher.Constraint("DistanceY", -1, 1, 2, 2, Q("13.5 mm")),
])
pad4 = body.newObject("PartDesign::Pad", "Pad003")
pad4.Profile = sketch13
pad4.Length = 1.5
pad4.Midplane = True

# Sketch on XZ plane
sketch14 = body.newObject("Sketcher::SketchObject", "Sketch013")
sketch14.AttachmentSupport = (doc.getObject("XZ_Plane"), [""])
sketch14.MapMode = "FlatFace"
add_polygon(sketch14, [(13.5, -7.9), (10, -7), (10, -6.5), (13.5, -7.4)])  # lines 0-3
add_polygon(sketch14, [(13.5, -3), (13.5, -3.5), (10, -5), (10, -4.5)])  # lines 4-7
sketch14.addConstraint([
    Sketcher.Constraint("Vertical", 1),
    Sketcher.Constraint("Vertical", 3),
    Sketcher.Constraint("Vertical", 4),
    Sketcher.Constraint("Vertical", 6),
    Sketcher.Constraint("Parallel", 0, 2),
    Sketcher.Constraint("Parallel", 5, 7),
    Sketcher.Constraint("Vertical", 3, 2, 4, 2),
    Sketcher.Constraint("Vertical", 1, 2, 5, 2),
    Sketcher.Constraint("Equal", 3, 4),
    Sketcher.Constraint("DistanceY", 1, 1, 1, 2, Q("0.5 mm")),
    Sketcher.Constraint("DistanceX", -1, 1, 0, 2, Q("10 mm")),
    Sketcher.Constraint("DistanceY", 0, 2, -1, 1, Q("7 mm")),
    Sketcher.Constraint("DistanceY", 5, 2, -1, 1, Q("5 mm")),
    Sketcher.Constraint("DistanceY", 7, 2, -1, 1, Q("3 mm")),
    Sketcher.Constraint("DistanceX", -1, 1, 2, 2, Q("13.5 mm")),
    Sketcher.Constraint("DistanceY", 2, 2, -1, 1, Q("7.4 mm")),
])
pad5 = body.newObject("PartDesign::Pad", "Pad004")
pad5.Profile = sketch14
pad5.Length = 1.5
pad5.Midplane = True

# Sketch on XY plane
sketch15 = body.newObject("Sketcher::SketchObject", "Sketch014")
sketch15.AttachmentSupport = (doc.getObject("XY_Plane"), [""])
sketch15.MapMode = "FlatFace"
sketch15.AttachmentOffset = App.Placement(V(0, 0, 13.5), App.Rotation())
add_polygon(sketch15, [(-1.1, 3), (-1.1, 0), (1.1, 0), (1.1, 3)])  # lines 0-3
sketch15.addConstraint([
    Sketcher.Constraint("Vertical", 0),
    Sketcher.Constraint("Horizontal", 1),
    Sketcher.Constraint("Vertical", 2),
    Sketcher.Constraint("Horizontal", 3),
    Sketcher.Constraint("Symmetric", 0, 2, 1, 2, -1, 1),
    Sketcher.Constraint("DistanceY", 0, 2, 0, 1, Q("3 mm")),
    Sketcher.Constraint("DistanceX", 1, 1, 1, 2, Q("2.2 mm")),
])
pocket10 = body.newObject("PartDesign::Pocket", "Pocket009")
pocket10.Profile = sketch15
pocket10.Length = 2
doc.recompute()

polarpattern5 = body.newObject("PartDesign::PolarPattern", "PolarPattern004")
polarpattern5.Originals = [pocket10]
polarpattern5.Axis = (doc.getObject("Y_Axis"), [""])
polarpattern5.Angle = 360
polarpattern5.Occurrences = 4
body.Tip = polarpattern5

doc.recompute()
